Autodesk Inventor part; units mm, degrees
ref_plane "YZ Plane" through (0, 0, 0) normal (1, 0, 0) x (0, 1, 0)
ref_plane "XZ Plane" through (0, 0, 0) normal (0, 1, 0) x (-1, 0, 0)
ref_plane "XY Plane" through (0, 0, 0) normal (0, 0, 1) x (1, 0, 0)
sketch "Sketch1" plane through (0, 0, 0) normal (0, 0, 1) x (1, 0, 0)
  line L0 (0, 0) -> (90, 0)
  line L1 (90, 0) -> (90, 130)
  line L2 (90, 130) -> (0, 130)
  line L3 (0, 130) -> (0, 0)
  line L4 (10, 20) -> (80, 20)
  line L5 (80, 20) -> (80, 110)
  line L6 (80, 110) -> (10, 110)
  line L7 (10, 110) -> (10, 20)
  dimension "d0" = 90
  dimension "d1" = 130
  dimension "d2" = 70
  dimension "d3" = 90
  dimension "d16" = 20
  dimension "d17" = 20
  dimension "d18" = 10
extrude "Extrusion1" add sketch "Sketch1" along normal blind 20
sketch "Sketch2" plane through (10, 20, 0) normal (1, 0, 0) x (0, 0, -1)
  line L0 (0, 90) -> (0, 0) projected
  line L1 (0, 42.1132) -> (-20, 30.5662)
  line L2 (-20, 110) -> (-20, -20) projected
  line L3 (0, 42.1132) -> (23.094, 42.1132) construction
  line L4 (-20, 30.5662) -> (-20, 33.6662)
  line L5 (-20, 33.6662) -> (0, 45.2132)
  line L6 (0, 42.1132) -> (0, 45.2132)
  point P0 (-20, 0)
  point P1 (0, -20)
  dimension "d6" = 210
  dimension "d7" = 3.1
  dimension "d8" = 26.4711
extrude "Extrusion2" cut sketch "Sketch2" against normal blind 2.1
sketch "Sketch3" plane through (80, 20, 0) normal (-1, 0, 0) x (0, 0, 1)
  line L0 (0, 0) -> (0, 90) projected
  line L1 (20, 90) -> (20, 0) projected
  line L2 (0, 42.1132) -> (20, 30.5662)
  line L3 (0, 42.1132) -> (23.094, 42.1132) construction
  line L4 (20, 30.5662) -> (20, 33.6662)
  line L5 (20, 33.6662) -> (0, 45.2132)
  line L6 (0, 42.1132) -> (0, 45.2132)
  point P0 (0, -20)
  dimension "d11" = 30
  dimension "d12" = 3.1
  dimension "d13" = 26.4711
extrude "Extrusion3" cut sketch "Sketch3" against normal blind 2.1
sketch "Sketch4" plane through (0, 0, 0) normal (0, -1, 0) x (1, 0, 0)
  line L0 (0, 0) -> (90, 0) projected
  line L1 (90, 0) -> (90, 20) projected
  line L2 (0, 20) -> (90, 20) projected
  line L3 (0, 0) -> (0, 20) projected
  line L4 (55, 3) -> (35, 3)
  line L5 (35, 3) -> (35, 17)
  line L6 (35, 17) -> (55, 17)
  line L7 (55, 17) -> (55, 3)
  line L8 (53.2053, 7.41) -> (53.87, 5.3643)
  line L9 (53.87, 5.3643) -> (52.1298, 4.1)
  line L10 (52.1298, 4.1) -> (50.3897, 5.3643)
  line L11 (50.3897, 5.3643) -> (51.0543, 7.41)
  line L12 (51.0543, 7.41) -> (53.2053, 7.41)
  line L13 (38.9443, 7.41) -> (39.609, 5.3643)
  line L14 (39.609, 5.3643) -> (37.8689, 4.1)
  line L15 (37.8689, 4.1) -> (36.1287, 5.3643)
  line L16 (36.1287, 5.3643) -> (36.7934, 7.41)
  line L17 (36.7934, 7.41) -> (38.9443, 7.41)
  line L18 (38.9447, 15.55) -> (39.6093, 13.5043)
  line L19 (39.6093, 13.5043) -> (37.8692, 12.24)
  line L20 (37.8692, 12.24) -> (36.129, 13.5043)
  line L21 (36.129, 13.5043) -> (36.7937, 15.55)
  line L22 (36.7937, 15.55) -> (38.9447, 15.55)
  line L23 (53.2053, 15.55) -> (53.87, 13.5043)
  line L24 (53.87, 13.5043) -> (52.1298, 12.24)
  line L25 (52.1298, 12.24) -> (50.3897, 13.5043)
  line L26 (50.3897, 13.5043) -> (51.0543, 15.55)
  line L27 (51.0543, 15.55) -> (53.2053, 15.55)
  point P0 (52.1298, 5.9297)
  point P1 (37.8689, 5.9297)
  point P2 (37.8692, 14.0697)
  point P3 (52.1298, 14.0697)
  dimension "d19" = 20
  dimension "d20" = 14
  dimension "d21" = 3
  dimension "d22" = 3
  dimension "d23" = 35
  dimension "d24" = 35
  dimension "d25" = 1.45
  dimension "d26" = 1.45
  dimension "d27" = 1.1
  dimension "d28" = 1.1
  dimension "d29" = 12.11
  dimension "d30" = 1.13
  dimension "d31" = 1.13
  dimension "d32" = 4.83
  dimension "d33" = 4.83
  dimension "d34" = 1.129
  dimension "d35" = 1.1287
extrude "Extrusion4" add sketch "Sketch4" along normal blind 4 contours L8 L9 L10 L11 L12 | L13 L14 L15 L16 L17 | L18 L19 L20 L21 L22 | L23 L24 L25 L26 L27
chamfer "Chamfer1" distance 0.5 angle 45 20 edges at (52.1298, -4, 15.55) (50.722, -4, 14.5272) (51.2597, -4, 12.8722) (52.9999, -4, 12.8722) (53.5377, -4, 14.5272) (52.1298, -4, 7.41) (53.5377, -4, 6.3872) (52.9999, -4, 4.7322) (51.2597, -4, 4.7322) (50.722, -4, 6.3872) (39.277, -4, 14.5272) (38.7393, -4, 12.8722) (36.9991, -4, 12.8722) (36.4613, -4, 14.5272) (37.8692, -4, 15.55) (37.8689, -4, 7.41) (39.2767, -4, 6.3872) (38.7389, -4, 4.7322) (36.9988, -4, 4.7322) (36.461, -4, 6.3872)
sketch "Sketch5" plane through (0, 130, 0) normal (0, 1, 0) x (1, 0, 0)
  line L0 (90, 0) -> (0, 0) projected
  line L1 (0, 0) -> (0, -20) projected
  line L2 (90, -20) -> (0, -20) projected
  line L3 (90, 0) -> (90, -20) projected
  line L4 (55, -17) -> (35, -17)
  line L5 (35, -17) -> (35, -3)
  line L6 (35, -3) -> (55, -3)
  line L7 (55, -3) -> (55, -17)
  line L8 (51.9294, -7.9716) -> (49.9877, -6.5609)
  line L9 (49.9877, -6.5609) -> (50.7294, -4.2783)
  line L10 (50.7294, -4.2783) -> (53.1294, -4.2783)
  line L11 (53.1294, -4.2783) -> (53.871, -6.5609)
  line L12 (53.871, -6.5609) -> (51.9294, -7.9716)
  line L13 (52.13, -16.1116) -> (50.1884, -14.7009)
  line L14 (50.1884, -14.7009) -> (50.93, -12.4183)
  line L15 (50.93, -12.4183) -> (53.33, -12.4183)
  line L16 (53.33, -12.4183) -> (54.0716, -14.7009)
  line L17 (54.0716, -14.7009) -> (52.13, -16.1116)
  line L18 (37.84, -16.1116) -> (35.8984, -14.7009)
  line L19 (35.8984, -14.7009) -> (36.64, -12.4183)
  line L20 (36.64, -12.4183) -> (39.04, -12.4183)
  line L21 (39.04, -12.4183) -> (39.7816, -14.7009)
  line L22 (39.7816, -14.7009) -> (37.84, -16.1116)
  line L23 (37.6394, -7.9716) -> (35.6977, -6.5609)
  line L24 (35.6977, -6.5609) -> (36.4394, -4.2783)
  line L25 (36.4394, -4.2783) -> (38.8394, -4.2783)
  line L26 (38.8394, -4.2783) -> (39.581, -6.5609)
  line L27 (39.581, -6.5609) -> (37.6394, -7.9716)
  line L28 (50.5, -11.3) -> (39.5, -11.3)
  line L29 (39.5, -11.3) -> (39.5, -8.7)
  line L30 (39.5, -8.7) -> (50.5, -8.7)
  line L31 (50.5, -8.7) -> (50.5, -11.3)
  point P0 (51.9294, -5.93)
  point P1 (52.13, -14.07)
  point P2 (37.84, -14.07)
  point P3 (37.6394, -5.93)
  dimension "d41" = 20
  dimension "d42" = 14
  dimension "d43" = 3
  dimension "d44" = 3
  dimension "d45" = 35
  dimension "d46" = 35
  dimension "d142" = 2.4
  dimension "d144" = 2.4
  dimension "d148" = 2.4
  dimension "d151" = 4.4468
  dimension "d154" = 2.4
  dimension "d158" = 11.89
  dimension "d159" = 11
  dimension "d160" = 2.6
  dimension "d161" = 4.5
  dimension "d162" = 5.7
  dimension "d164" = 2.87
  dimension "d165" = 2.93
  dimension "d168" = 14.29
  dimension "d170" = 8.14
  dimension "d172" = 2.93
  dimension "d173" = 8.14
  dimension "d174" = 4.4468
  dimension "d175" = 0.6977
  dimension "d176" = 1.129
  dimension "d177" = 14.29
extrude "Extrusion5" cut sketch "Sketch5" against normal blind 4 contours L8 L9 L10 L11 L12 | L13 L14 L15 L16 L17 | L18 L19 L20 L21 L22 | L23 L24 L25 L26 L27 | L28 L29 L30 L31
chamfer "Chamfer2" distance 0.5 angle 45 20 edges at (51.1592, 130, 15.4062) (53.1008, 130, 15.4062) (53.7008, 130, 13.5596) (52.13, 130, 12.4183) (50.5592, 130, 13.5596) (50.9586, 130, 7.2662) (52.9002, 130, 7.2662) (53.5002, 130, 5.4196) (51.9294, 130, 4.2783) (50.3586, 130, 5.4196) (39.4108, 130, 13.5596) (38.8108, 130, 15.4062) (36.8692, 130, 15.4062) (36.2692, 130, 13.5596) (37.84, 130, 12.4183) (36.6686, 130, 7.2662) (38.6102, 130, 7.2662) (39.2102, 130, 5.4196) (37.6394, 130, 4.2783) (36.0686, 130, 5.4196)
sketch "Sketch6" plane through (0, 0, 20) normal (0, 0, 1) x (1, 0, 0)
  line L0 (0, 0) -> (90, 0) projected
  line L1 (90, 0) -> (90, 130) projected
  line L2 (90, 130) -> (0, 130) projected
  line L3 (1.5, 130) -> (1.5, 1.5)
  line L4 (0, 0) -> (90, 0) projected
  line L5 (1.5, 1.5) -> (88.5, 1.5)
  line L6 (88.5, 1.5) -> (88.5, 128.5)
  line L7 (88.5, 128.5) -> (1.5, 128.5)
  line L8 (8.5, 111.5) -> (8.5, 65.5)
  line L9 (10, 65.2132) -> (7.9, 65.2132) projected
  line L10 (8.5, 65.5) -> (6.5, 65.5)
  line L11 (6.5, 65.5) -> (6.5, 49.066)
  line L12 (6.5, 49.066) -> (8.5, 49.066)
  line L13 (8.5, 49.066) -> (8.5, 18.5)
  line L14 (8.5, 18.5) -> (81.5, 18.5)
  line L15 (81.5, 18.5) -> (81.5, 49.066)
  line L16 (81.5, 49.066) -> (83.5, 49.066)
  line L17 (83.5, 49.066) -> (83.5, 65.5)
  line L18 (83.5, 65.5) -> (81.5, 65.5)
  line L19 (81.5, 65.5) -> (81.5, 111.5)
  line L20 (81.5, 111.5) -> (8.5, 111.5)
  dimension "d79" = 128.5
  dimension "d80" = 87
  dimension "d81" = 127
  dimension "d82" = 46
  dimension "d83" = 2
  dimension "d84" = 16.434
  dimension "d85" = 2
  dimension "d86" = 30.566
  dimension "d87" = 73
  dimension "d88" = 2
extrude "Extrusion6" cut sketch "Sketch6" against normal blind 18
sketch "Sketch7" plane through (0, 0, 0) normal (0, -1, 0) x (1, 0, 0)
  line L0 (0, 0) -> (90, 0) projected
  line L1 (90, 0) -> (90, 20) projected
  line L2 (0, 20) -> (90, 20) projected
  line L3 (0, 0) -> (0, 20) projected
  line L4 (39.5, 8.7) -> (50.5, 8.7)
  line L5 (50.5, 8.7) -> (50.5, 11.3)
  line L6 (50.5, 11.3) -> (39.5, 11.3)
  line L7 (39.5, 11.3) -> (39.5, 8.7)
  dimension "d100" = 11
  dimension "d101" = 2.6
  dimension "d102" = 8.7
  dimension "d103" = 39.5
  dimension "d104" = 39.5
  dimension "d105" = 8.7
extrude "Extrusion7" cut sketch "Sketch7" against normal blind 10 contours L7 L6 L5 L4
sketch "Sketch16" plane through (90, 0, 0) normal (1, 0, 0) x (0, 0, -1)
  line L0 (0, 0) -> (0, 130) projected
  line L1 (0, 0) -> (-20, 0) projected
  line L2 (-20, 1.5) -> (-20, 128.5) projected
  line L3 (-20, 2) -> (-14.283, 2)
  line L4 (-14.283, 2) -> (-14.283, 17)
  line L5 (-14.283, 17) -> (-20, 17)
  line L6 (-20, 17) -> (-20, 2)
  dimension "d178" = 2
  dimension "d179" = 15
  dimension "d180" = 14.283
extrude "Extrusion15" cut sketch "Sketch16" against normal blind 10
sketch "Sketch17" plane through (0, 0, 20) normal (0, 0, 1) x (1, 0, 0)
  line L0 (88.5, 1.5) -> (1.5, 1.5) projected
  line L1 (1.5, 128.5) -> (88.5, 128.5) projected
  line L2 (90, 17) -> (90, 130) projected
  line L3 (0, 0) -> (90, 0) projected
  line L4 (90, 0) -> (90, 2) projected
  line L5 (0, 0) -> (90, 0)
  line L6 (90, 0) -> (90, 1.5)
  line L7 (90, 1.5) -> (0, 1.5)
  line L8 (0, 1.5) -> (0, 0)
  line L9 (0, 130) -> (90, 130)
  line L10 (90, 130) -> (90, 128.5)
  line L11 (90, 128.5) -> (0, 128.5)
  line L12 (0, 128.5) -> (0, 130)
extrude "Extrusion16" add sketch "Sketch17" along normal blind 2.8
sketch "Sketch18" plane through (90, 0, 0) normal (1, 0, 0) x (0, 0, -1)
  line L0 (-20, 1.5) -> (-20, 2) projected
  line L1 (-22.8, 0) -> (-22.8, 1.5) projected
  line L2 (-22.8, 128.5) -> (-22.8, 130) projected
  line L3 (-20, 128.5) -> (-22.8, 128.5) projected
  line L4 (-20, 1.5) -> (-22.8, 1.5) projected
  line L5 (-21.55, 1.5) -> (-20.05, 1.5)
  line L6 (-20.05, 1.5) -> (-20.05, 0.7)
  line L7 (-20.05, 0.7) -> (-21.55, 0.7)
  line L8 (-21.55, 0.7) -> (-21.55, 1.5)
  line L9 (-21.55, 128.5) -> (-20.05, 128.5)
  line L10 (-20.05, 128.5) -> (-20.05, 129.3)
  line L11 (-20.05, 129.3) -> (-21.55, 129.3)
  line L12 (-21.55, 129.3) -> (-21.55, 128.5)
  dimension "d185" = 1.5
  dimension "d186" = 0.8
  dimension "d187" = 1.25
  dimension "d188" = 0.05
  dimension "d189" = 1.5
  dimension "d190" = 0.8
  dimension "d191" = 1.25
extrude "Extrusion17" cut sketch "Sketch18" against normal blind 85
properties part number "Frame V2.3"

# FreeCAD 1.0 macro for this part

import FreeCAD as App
import Part
import Sketcher
Q = App.Units.Quantity


def edges_at(feature, points):
    """Names of the edges that pass closest to the given points."""
    edges = feature.Shape.Edges
    near = lambda p: min(range(len(edges)), key=lambda i: edges[i].distToShape(Part.Vertex(*p))[0])
    return sorted({f"Edge{near(p) + 1}" for p in points})


def add_polygon(sketch, points):
    """Adds a closed chain of lines whose ends are joined by coincident constraints."""
    first, n = sketch.GeometryCount, len(points)
    for a, b in zip(points, points[1:] + points[:1]):
        sketch.addGeometry(Part.LineSegment(App.Vector(*a, 0), App.Vector(*b, 0)), False)
    for i in range(n):
        sketch.addConstraint(Sketcher.Constraint("Coincident", first + i, 2, first + (i + 1) % n, 1))

doc = App.newDocument("Part")
body = doc.addObject("PartDesign::Body", "Body")

# Sketch on XY plane
sketch1 = body.newObject("Sketcher::SketchObject", "Sketch")
sketch1.AttachmentSupport = (doc.getObject("XY_Plane"), [""])
sketch1.MapMode = "FlatFace"
add_polygon(sketch1, [(0, 130), (0, 0), (90, 0), (90, 130)])  # lines 0-3
add_polygon(sketch1, [(80, 20), (10, 20), (10, 110), (80, 110)])  # lines 4-7
sketch1.addConstraint(Sketcher.Constraint("Vertical", 0))
sketch1.addConstraint(Sketcher.Constraint("Horizontal", 1))
sketch1.addConstraint(Sketcher.Constraint("Vertical", 2))
sketch1.addConstraint(Sketcher.Constraint("Horizontal", 3))
sketch1.addConstraint(Sketcher.Constraint("Horizontal", 4))
sketch1.addConstraint(Sketcher.Constraint("Vertical", 5))
sketch1.addConstraint(Sketcher.Constraint("Horizontal", 6))
sketch1.addConstraint(Sketcher.Constraint("Vertical", 7))
sketch1.addConstraint(Sketcher.Constraint("Coincident", 0, 2, -1, 1))
sketch1.addConstraint(Sketcher.Constraint("Equal", 3, 5))
sketch1.addConstraint(Sketcher.Constraint("DistanceX", 1, 1, 1, 2, 90.0))
sketch1.addConstraint(Sketcher.Constraint("DistanceX", 4, 2, 4, 1, 70.0))
sketch1.addConstraint(Sketcher.Constraint("DistanceY", 0, 2, 0, 1, 130.0))
sketch1.addConstraint(Sketcher.Constraint("DistanceX", -1, 1, 4, 2, 10.0))
sketch1.addConstraint(Sketcher.Constraint("DistanceY", -1, 1, 4, 2, 20.0))
pad1 = body.newObject("PartDesign::Pad", "Pad")
pad1.Profile = sketch1
pad1.Length = 20

# Sketch on YZ plane
sketch2 = body.newObject("Sketcher::SketchObject", "Sketch001")
sketch2.AttachmentSupport = (doc.getObject("YZ_Plane"), [""])
sketch2.MapMode = "FlatFace"
sketch2.AttachmentOffset = App.Placement(App.Vector(0, 0, 10), App.Rotation())
add_polygon(sketch2, [(62.1132, 0), (65.2132, 0), (53.6662, 20), (50.5662, 20)])  # lines 0-3
sketch2.addConstraint(Sketcher.Constraint("Horizontal", 0))
sketch2.addConstraint(Sketcher.Constraint("Horizontal", 2))
sketch2.addConstraint(Sketcher.Constraint("PointOnObject", 0, 2, -1))
sketch2.addConstraint(Sketcher.Constraint("Parallel", 1, 3))
sketch2.addConstraint(Sketcher.Constraint("DistanceX", 0, 1, 0, 2, 3.1))
sketch2.addConstraint(Sketcher.Constraint("Angle", 1, Q("120 deg")))
sketch2.addConstraint(Sketcher.Constraint("DistanceY", -1, 1, 1, 2, 20.0))
sketch2.addConstraint(Sketcher.Constraint("DistanceX", -1, 1, 0, 2, 65.2132))
pocket1 = body.newObject("PartDesign::Pocket", "Pocket")
pocket1.Profile = sketch2
pocket1.Length = 2.1

# Sketch on YZ plane
sketch3 = body.newObject("Sketcher::SketchObject", "Sketch002")
sketch3.AttachmentSupport = (doc.getObject("YZ_Plane"), [""])
sketch3.MapMode = "FlatFace"
sketch3.AttachmentOffset = App.Placement(App.Vector(0, 0, 80), App.Rotation())
add_polygon(sketch3, [(65.2132, 0), (62.1132, 0), (50.5662, 20), (53.6662, 20)])  # lines 0-3
sketch3.addConstraint(Sketcher.Constraint("Horizontal", 0))
sketch3.addConstraint(Sketcher.Constraint("Horizontal", 2))
sketch3.addConstraint(Sketcher.Constraint("PointOnObject", 0, 2, -1))
sketch3.addConstraint(Sketcher.Constraint("Parallel", 1, 3))
sketch3.addConstraint(Sketcher.Constraint("DistanceX", 0, 2, 0, 1, 3.1))
sketch3.addConstraint(Sketcher.Constraint("Angle", 1, Q("120 deg")))
sketch3.addConstraint(Sketcher.Constraint("DistanceY", -1, 1, 1, 2, 20.0))
sketch3.addConstraint(Sketcher.Constraint("DistanceX", -1, 1, 0, 2, 62.1132))
pocket2 = body.newObject("PartDesign::Pocket", "Pocket001")
pocket2.Profile = sketch3
pocket2.Length = 2.1
pocket2.Reversed = True

# Sketch on XZ plane
sketch4 = body.newObject("Sketcher::SketchObject", "Sketch003")
sketch4.AttachmentSupport = (doc.getObject("XZ_Plane"), [""])
sketch4.MapMode = "FlatFace"
add_polygon(sketch4, [(53.87, 5.3643), (53.2053, 7.41), (51.0543, 7.41), (50.3897, 5.3643), (52.1298, 4.1)])  # lines 0-4
add_polygon(sketch4, [(39.609, 5.3643), (38.9443, 7.41), (36.7934, 7.41), (36.1287, 5.3643), (37.8689, 4.1)])  # lines 5-9
add_polygon(sketch4, [(39.6093, 13.5043), (38.9447, 15.55), (36.7937, 15.55), (36.129, 13.5043), (37.8692, 12.24)])  # lines 10-14
add_polygon(sketch4, [(53.87, 13.5043), (53.2053, 15.55), (51.0543, 15.55), (50.3897, 13.5043), (52.1298, 12.24)])  # lines 15-19
sketch4.addConstraint(Sketcher.Constraint("Horizontal", 1))
sketch4.addConstraint(Sketcher.Constraint("Horizontal", 6))
sketch4.addConstraint(Sketcher.Constraint("Horizontal", 11))
sketch4.addConstraint(Sketcher.Constraint("Horizontal", 16))
sketch4.addConstraint(Sketcher.Constraint("Parallel", 0, 5))
sketch4.addConstraint(Sketcher.Constraint("Parallel", 2, 7))
sketch4.addConstraint(Sketcher.Constraint("Parallel", 3, 8))
sketch4.addConstraint(Sketcher.Constraint("Parallel", 4, 9))
sketch4.addConstraint(Sketcher.Constraint("Parallel", 5, 10))
sketch4.addConstraint(Sketcher.Constraint("Parallel", 7, 12))
sketch4.addConstraint(Sketcher.Constraint("Parallel", 8, 13))
sketch4.addConstraint(Sketcher.Constraint("Parallel", 9, 14))
sketch4.addConstraint(Sketcher.Constraint("Parallel", 10, 15))
sketch4.addConstraint(Sketcher.Constraint("Parallel", 12, 17))
sketch4.addConstraint(Sketcher.Constraint("Parallel", 13, 18))
sketch4.addConstraint(Sketcher.Constraint("Parallel", 14, 19))
sketch4.addConstraint(Sketcher.Constraint("Horizontal", 2, 2, 4, 2))
sketch4.addConstraint(Sketcher.Constraint("Horizontal", 1, 2, 5, 2))
sketch4.addConstraint(Sketcher.Constraint("Horizontal", 4, 2, 7, 2))
sketch4.addConstraint(Sketcher.Constraint("Horizontal", 3, 2, 8, 2))
sketch4.addConstraint(Sketcher.Constraint("Horizontal", 7, 2, 9, 2))
sketch4.addConstraint(Sketcher.Constraint("Horizontal", 12, 2, 14, 2))
sketch4.addConstraint(Sketcher.Constraint("Horizontal", 11, 2, 15, 2))
sketch4.addConstraint(Sketcher.Constraint("Horizontal", 14, 2, 17, 2))
sketch4.addConstraint(Sketcher.Constraint("Horizontal", 13, 2, 18, 2))
sketch4.addConstraint(Sketcher.Constraint("Horizontal", 17, 2, 19, 2))
sketch4.addConstraint(Sketcher.Constraint("Vertical", 0, 2, 15, 2))
sketch4.addConstraint(Sketcher.Constraint("Vertical", 1, 2, 16, 2))
sketch4.addConstraint(Sketcher.Constraint("Vertical", 2, 2, 17, 2))
sketch4.addConstraint(Sketcher.Constraint("Equal", 0, 2))
sketch4.addConstraint(Sketcher.Constraint("Equal", 2, 3))
sketch4.addConstraint(Sketcher.Constraint("Equal", 3, 4))
sketch4.addConstraint(Sketcher.Constraint("Angle", 0, Q("108.0003 deg")))
sketch4.addConstraint(Sketcher.Constraint("Angle", 3, Q("-36.001 deg")))
sketch4.addConstraint(Sketcher.Constraint("DistanceX", 5, 2, 1, 2, 12.11))
sketch4.addConstraint(Sketcher.Constraint("DistanceY", 5, 2, 13, 2, 4.83))
sketch4.addConstraint(Sketcher.Constraint("DistanceY", -1, 1, 3, 2, 4.1))
sketch4.addConstraint(Sketcher.Constraint("DistanceX", 1, 2, 1, 1, 2.151))
sketch4.addConstraint(Sketcher.Constraint("DistanceX", -1, 1, 4, 2, 53.87))
sketch4.addConstraint(Sketcher.Constraint("DistanceX", -1, 1, 12, 2, 36.129))
pad2 = body.newObject("PartDesign::Pad", "Pad001")
pad2.Profile = sketch4
pad2.Length = 4
doc.recompute()

chamfer = body.newObject("PartDesign::Chamfer", "Chamfer")
chamfer.Base = (pad2, edges_at(pad2, [
    (52.13, -4, 15.55),
    (50.722, -4, 14.527),
    (51.26, -4, 12.872),
    (53, -4, 12.872),
    (53.538, -4, 14.527),
    (52.13, -4, 7.41),
    (53.538, -4, 6.387),
    (53, -4, 4.732),
    (51.26, -4, 4.732),
    (50.722, -4, 6.387),
    (39.277, -4, 14.527),
    (38.739, -4, 12.872),
    (36.999, -4, 12.872),
    (36.461, -4, 14.527),
    (37.869, -4, 15.55),
    (37.869, -4, 7.41),
    (39.277, -4, 6.387),
    (38.739, -4, 4.732),
    (36.999, -4, 4.732),
    (36.461, -4, 6.387),
]))
chamfer.Size = 0.5

# Sketch on XZ plane
sketch5 = body.newObject("Sketcher::SketchObject", "Sketch004")
sketch5.AttachmentSupport = (doc.getObject("XZ_Plane"), [""])
sketch5.MapMode = "FlatFace"
sketch5.AttachmentOffset = App.Placement(App.Vector(0, 0, -130), App.Rotation())
add_polygon(sketch5, [(49.9877, 6.5609), (51.9294, 7.9716), (53.871, 6.5609), (53.1294, 4.2783), (50.7294, 4.2783)])  # lines 0-4
add_polygon(sketch5, [(50.1884, 14.7009), (52.13, 16.1116), (54.0716, 14.7009), (53.33, 12.4183), (50.93, 12.4183)])  # lines 5-9
add_polygon(sketch5, [(35.8984, 14.7009), (37.84, 16.1116), (39.7816, 14.7009), (39.04, 12.4183), (36.64, 12.4183)])  # lines 10-14
add_polygon(sketch5, [(35.6977, 6.5609), (37.6394, 7.9716), (39.581, 6.5609), (38.8394, 4.2783), (36.4394, 4.2783)])  # lines 15-19
add_polygon(sketch5, [(39.5, 11.3), (50.5, 11.3), (50.5, 8.7), (39.5, 8.7)])  # lines 20-23
sketch5.addConstraint(Sketcher.Constraint("Horizontal", 3))
sketch5.addConstraint(Sketcher.Constraint("Horizontal", 8))
sketch5.addConstraint(Sketcher.Constraint("Horizontal", 13))
sketch5.addConstraint(Sketcher.Constraint("Horizontal", 18))
sketch5.addConstraint(Sketcher.Constraint("Horizontal", 20))
sketch5.addConstraint(Sketcher.Constraint("Vertical", 21))
sketch5.addConstraint(Sketcher.Constraint("Horizontal", 22))
sketch5.addConstraint(Sketcher.Constraint("Vertical", 23))
sketch5.addConstraint(Sketcher.Constraint("Parallel", 0, 5))
sketch5.addConstraint(Sketcher.Constraint("Parallel", 1, 6))
sketch5.addConstraint(Sketcher.Constraint("Parallel", 2, 7))
sketch5.addConstraint(Sketcher.Constraint("Parallel", 4, 9))
sketch5.addConstraint(Sketcher.Constraint("Parallel", 5, 10))
sketch5.addConstraint(Sketcher.Constraint("Parallel", 6, 11))
sketch5.addConstraint(Sketcher.Constraint("Parallel", 7, 12))
sketch5.addConstraint(Sketcher.Constraint("Parallel", 9, 14))
sketch5.addConstraint(Sketcher.Constraint("Parallel", 10, 15))
sketch5.addConstraint(Sketcher.Constraint("Parallel", 11, 16))
sketch5.addConstraint(Sketcher.Constraint("Parallel", 12, 17))
sketch5.addConstraint(Sketcher.Constraint("Parallel", 14, 19))
sketch5.addConstraint(Sketcher.Constraint("Horizontal", 1, 2, 4, 2))
sketch5.addConstraint(Sketcher.Constraint("Horizontal", 6, 2, 9, 2))
sketch5.addConstraint(Sketcher.Constraint("Horizontal", 5, 2, 10, 2))
sketch5.addConstraint(Sketcher.Constraint("Horizontal", 9, 2, 11, 2))
sketch5.addConstraint(Sketcher.Constraint("Horizontal", 8, 2, 12, 2))
sketch5.addConstraint(Sketcher.Constraint("Horizontal", 11, 2, 14, 2))
sketch5.addConstraint(Sketcher.Constraint("Horizontal", 0, 2, 15, 2))
sketch5.addConstraint(Sketcher.Constraint("Horizontal", 4, 2, 16, 2))
sketch5.addConstraint(Sketcher.Constraint("Horizontal", 3, 2, 17, 2))
sketch5.addConstraint(Sketcher.Constraint("Horizontal", 16, 2, 19, 2))
sketch5.addConstraint(Sketcher.Constraint("Equal", 3, 8))
sketch5.addConstraint(Sketcher.Constraint("Equal", 0, 1))
sketch5.addConstraint(Sketcher.Constraint("Equal", 1, 2))
sketch5.addConstraint(Sketcher.Constraint("Equal", 2, 4))
sketch5.addConstraint(Sketcher.Constraint("Equal", 4, 5))
sketch5.addConstraint(Sketcher.Constraint("DistanceX", 20, 1, 20, 2, 11.0))
sketch5.addConstraint(Sketcher.Constraint("DistanceX", 3, 2, 3, 1, 2.4))
sketch5.addConstraint(Sketcher.Constraint("DistanceY", 21, 2, 21, 1, 2.6))
sketch5.addConstraint(Sketcher.Constraint("Distance", 0, 2.4))
sketch5.addConstraint(Sketcher.Constraint("Angle", 0, Q("35.9995 deg")))
sketch5.addConstraint(Sketcher.Constraint("DistanceY", 0, 2, 5, 2, 8.14))
sketch5.addConstraint(Sketcher.Constraint("DistanceX", 10, 2, 5, 2, 14.29))
sketch5.addConstraint(Sketcher.Constraint("DistanceX", -1, 1, 20, 2, 50.5))
sketch5.addConstraint(Sketcher.Constraint("DistanceY", -1, 1, 20, 2, 11.3))
sketch5.addConstraint(Sketcher.Constraint("DistanceX", 18, 2, 12, 2, 2.6006))
sketch5.addConstraint(Sketcher.Constraint("DistanceX", -1, 1, 5, 2, 52.13))
sketch5.addConstraint(Sketcher.Constraint("DistanceX", -1, 1, 1, 2, 53.871))
sketch5.addConstraint(Sketcher.Constraint("DistanceY", -1, 1, 1, 2, 6.561))
pocket3 = body.newObject("PartDesign::Pocket", "Pocket002")
pocket3.Profile = sketch5
pocket3.Length = 4
pocket3.Reversed = True
doc.recompute()

chamfer2 = body.newObject("PartDesign::Chamfer", "Chamfer001")
chamfer2.Base = (pocket3, edges_at(pocket3, [
    (51.159, 130, 15.406),
    (53.101, 130, 15.406),
    (53.701, 130, 13.56),
    (52.13, 130, 12.418),
    (50.559, 130, 13.56),
    (50.959, 130, 7.266),
    (52.9, 130, 7.266),
    (53.5, 130, 5.42),
    (51.929, 130, 4.278),
    (50.359, 130, 5.42),
    (39.411, 130, 13.56),
    (38.811, 130, 15.406),
    (36.869, 130, 15.406),
    (36.269, 130, 13.56),
    (37.84, 130, 12.418),
    (36.669, 130, 7.266),
    (38.61, 130, 7.266),
    (39.21, 130, 5.42),
    (37.639, 130, 4.278),
    (36.069, 130, 5.42),
]))
chamfer2.Size = 0.5

# Sketch on XY plane
sketch6 = body.newObject("Sketcher::SketchObject", "Sketch005")
sketch6.AttachmentSupport = (doc.getObject("XY_Plane"), [""])
sketch6.MapMode = "FlatFace"
sketch6.AttachmentOffset = App.Placement(App.Vector(0, 0, 20), App.Rotation())
add_polygon(sketch6, [(88.5, 128.5), (1.5, 128.5), (1.5, 1.5), (88.5, 1.5)])  # lines 0-3
add_polygon(sketch6, [(8.5, 65.5), (8.5, 111.5), (81.5, 111.5), (81.5, 65.5), (83.5, 65.5), (83.5, 49.066), (81.5, 49.066), (81.5, 18.5), (8.5, 18.5), (8.5, 49.066), (6.5, 49.066), (6.5, 65.5)])  # lines 4-15
sketch6.addConstraint(Sketcher.Constraint("Horizontal", 0))
sketch6.addConstraint(Sketcher.Constraint("Vertical", 1))
sketch6.addConstraint(Sketcher.Constraint("Horizontal", 2))
sketch6.addConstraint(Sketcher.Constraint("Vertical", 3))
sketch6.addConstraint(Sketcher.Constraint("Vertical", 4))
sketch6.addConstraint(Sketcher.Constraint("Horizontal", 5))
sketch6.addConstraint(Sketcher.Constraint("Vertical", 6))
sketch6.addConstraint(Sketcher.Constraint("Horizontal", 7))
sketch6.addConstraint(Sketcher.Constraint("Vertical", 8))
sketch6.addConstraint(Sketcher.Constraint("Horizontal", 9))
sketch6.addConstraint(Sketcher.Constraint("Vertical", 10))
sketch6.addConstraint(Sketcher.Constraint("Horizontal", 11))
sketch6.addConstraint(Sketcher.Constraint("Vertical", 12))
sketch6.addConstraint(Sketcher.Constraint("Horizontal", 13))
sketch6.addConstraint(Sketcher.Constraint("Vertical", 14))
sketch6.addConstraint(Sketcher.Constraint("Horizontal", 15))
sketch6.addConstraint(Sketcher.Constraint("Horizontal", 9, 2, 12, 2))
sketch6.addConstraint(Sketcher.Constraint("Horizontal", 7, 2, 14, 2))
sketch6.addConstraint(Sketcher.Constraint("Vertical", 6, 2, 9, 2))
sketch6.addConstraint(Sketcher.Constraint("Vertical", 4, 2, 11, 2))
sketch6.addConstraint(Sketcher.Constraint("Equal", 9, 13))
sketch6.addConstraint(Sketcher.Constraint("DistanceX", 0, 2, 0, 1, 87.0))
sketch6.addConstraint(Sketcher.Constraint("DistanceX", 5, 1, 5, 2, 73.0))
sketch6.addConstraint(Sketcher.Constraint("DistanceX", 7, 1, 7, 2, 2.0))
sketch6.addConstraint(Sketcher.Constraint("DistanceY", 1, 2, 1, 1, 127.0))
sketch6.addConstraint(Sketcher.Constraint("DistanceY", 4, 1, 4, 2, 46.0))
sketch6.addConstraint(Sketcher.Constraint("DistanceY", -1, 1, 0, 2, 128.5))
sketch6.addConstraint(Sketcher.Constraint("DistanceY", 8, 2, 8, 1, 16.434))
sketch6.addConstraint(Sketcher.Constraint("DistanceY", 10, 2, 10, 1, 30.566))
sketch6.addConstraint(Sketcher.Constraint("DistanceX", 0, 2, 4, 2, 7.0))
sketch6.addConstraint(Sketcher.Constraint("DistanceY", 4, 2, 0, 2, 17.0))
sketch6.addConstraint(Sketcher.Constraint("DistanceX", -1, 1, 0, 2, 1.5))
pocket4 = body.newObject("PartDesign::Pocket", "Pocket003")
pocket4.Profile = sketch6
pocket4.Length = 18

# Sketch on XZ plane
sketch7 = body.newObject("Sketcher::SketchObject", "Sketch006")
sketch7.AttachmentSupport = (doc.getObject("XZ_Plane"), [""])
sketch7.MapMode = "FlatFace"
add_polygon(sketch7, [(39.5, 11.3), (39.5, 8.7), (50.5, 8.7), (50.5, 11.3)])  # lines 0-3
sketch7.addConstraint(Sketcher.Constraint("Vertical", 0))
sketch7.addConstraint(Sketcher.Constraint("Horizontal", 1))
sketch7.addConstraint(Sketcher.Constraint("Vertical", 2))
sketch7.addConstraint(Sketcher.Constraint("Horizontal", 3))
sketch7.addConstraint(Sketcher.Constraint("DistanceX", 1, 1, 1, 2, 11.0))
sketch7.addConstraint(Sketcher.Constraint("DistanceY", 0, 2, 0, 1, 2.6))
sketch7.addConstraint(Sketcher.Constraint("DistanceX", -1, 1, 0, 2, 39.5))
sketch7.addConstraint(Sketcher.Constraint("DistanceY", -1, 1, 0, 2, 8.7))
pocket5 = body.newObject("PartDesign::Pocket", "Pocket004")
pocket5.Profile = sketch7
pocket5.Length = 10

# Sketch on YZ plane
sketch8 = body.newObject("Sketcher::SketchObject", "Sketch007")
sketch8.AttachmentSupport = (doc.getObject("YZ_Plane"), [""])
sketch8.MapMode = "FlatFace"
sketch8.AttachmentOffset = App.Placement(App.Vector(0, 0, 90), App.Rotation())
add_polygon(sketch8, [(17, 20), (2, 20), (2, 14.283), (17, 14.283)])  # lines 0-3
sketch8.addConstraint(Sketcher.Constraint("Horizontal", 0))
sketch8.addConstraint(Sketcher.Constraint("Vertical", 1))
sketch8.addConstraint(Sketcher.Constraint("Horizontal", 2))
sketch8.addConstraint(Sketcher.Constraint("Vertical", 3))
sketch8.addConstraint(Sketcher.Constraint("DistanceX", 0, 2, 0, 1, 15.0))
sketch8.addConstraint(Sketcher.Constraint("DistanceX", -1, 1, 0, 2, 2.0))
sketch8.addConstraint(Sketcher.Constraint("DistanceY", -1, 1, 1, 2, 14.283))
sketch8.addConstraint(Sketcher.Constraint("DistanceY", -1, 1, 0, 2, 20.0))
pocket6 = body.newObject("PartDesign::Pocket", "Pocket005")
pocket6.Profile = sketch8
pocket6.Length = 10

# Sketch on XY plane
sketch9 = body.newObject("Sketcher::SketchObject", "Sketch008")
sketch9.AttachmentSupport = (doc.getObject("XY_Plane"), [""])
sketch9.MapMode = "FlatFace"
sketch9.AttachmentOffset = App.Placement(App.Vector(0, 0, 20), App.Rotation())
add_polygon(sketch9, [(90, 1.5), (0, 1.5), (0, 0), (90, 0)])  # lines 0-3
add_polygon(sketch9, [(0, 128.5), (90, 128.5), (90, 130), (0, 130)])  # lines 4-7
sketch9.addConstraint(Sketcher.Constraint("Horizontal", 0))
sketch9.addConstraint(Sketcher.Constraint("Vertical", 1))
sketch9.addConstraint(Sketcher.Constraint("Horizontal", 2))
sketch9.addConstraint(Sketcher.Constraint("Vertical", 3))
sketch9.addConstraint(Sketcher.Constraint("Horizontal", 4))
sketch9.addConstraint(Sketcher.Constraint("Vertical", 5))
sketch9.addConstraint(Sketcher.Constraint("Horizontal", 6))
sketch9.addConstraint(Sketcher.Constraint("Vertical", 7))
sketch9.addConstraint(Sketcher.Constraint("Coincident", 1, 2, -1, 1))
sketch9.addConstraint(Sketcher.Constraint("PointOnObject", 6, 2, -2))
sketch9.addConstraint(Sketcher.Constraint("Vertical", 3, 2, 4, 2))
sketch9.addConstraint(Sketcher.Constraint("Equal", 3, 5))
sketch9.addConstraint(Sketcher.Constraint("DistanceX", 0, 2, 0, 1, 90.0))
sketch9.addConstraint(Sketcher.Constraint("DistanceY", 1, 2, 1, 1, 1.5))
sketch9.addConstraint(Sketcher.Constraint("DistanceY", -1, 1, 5, 2, 130.0))
pad3 = body.newObject("PartDesign::Pad", "Pad002")
pad3.Profile = sketch9
pad3.Length = 2.8

# Sketch on YZ plane
sketch10 = body.newObject("Sketcher::SketchObject", "Sketch009")
sketch10.AttachmentSupport = (doc.getObject("YZ_Plane"), [""])
sketch10.MapMode = "FlatFace"
sketch10.AttachmentOffset = App.Placement(App.Vector(0, 0, 90), App.Rotation())
add_polygon(sketch10, [(128.5, 21.55), (128.5, 20.05), (129.3, 20.05), (129.3, 21.55)])  # lines 0-3
add_polygon(sketch10, [(0.7, 20.05), (1.5, 20.05), (1.5, 21.55), (0.7, 21.55)])  # lines 4-7
sketch10.addConstraint(Sketcher.Constraint("Vertical", 0))
sketch10.addConstraint(Sketcher.Constraint("Horizontal", 1))
sketch10.addConstraint(Sketcher.Constraint("Vertical", 2))
sketch10.addConstraint(Sketcher.Constraint("Horizontal", 3))
sketch10.addConstraint(Sketcher.Constraint("Horizontal", 4))
sketch10.addConstraint(Sketcher.Constraint("Vertical", 5))
sketch10.addConstraint(Sketcher.Constraint("Horizontal", 6))
sketch10.addConstraint(Sketcher.Constraint("Vertical", 7))
sketch10.addConstraint(Sketcher.Constraint("Horizontal", 1, 2, 4, 2))
sketch10.addConstraint(Sketcher.Constraint("Horizontal", 3, 2, 5, 2))
sketch10.addConstraint(Sketcher.Constraint("Equal", 3, 4))
sketch10.addConstraint(Sketcher.Constraint("DistanceX", 1, 1, 1, 2, 0.8))
sketch10.addConstraint(Sketcher.Constraint("DistanceY", 0, 2, 0, 1, 1.5))
sketch10.addConstraint(Sketcher.Constraint("DistanceX", -1, 1, 4, 2, 1.5))
sketch10.addConstraint(Sketcher.Constraint("DistanceX", 4, 2, 0, 2, 127.0))
sketch10.addConstraint(Sketcher.Constraint("DistanceY", -1, 1, 0, 2, 20.05))
pocket7 = body.newObject("PartDesign::Pocket", "Pocket006")
pocket7.Profile = sketch10
pocket7.Length = 85

doc.recompute()
